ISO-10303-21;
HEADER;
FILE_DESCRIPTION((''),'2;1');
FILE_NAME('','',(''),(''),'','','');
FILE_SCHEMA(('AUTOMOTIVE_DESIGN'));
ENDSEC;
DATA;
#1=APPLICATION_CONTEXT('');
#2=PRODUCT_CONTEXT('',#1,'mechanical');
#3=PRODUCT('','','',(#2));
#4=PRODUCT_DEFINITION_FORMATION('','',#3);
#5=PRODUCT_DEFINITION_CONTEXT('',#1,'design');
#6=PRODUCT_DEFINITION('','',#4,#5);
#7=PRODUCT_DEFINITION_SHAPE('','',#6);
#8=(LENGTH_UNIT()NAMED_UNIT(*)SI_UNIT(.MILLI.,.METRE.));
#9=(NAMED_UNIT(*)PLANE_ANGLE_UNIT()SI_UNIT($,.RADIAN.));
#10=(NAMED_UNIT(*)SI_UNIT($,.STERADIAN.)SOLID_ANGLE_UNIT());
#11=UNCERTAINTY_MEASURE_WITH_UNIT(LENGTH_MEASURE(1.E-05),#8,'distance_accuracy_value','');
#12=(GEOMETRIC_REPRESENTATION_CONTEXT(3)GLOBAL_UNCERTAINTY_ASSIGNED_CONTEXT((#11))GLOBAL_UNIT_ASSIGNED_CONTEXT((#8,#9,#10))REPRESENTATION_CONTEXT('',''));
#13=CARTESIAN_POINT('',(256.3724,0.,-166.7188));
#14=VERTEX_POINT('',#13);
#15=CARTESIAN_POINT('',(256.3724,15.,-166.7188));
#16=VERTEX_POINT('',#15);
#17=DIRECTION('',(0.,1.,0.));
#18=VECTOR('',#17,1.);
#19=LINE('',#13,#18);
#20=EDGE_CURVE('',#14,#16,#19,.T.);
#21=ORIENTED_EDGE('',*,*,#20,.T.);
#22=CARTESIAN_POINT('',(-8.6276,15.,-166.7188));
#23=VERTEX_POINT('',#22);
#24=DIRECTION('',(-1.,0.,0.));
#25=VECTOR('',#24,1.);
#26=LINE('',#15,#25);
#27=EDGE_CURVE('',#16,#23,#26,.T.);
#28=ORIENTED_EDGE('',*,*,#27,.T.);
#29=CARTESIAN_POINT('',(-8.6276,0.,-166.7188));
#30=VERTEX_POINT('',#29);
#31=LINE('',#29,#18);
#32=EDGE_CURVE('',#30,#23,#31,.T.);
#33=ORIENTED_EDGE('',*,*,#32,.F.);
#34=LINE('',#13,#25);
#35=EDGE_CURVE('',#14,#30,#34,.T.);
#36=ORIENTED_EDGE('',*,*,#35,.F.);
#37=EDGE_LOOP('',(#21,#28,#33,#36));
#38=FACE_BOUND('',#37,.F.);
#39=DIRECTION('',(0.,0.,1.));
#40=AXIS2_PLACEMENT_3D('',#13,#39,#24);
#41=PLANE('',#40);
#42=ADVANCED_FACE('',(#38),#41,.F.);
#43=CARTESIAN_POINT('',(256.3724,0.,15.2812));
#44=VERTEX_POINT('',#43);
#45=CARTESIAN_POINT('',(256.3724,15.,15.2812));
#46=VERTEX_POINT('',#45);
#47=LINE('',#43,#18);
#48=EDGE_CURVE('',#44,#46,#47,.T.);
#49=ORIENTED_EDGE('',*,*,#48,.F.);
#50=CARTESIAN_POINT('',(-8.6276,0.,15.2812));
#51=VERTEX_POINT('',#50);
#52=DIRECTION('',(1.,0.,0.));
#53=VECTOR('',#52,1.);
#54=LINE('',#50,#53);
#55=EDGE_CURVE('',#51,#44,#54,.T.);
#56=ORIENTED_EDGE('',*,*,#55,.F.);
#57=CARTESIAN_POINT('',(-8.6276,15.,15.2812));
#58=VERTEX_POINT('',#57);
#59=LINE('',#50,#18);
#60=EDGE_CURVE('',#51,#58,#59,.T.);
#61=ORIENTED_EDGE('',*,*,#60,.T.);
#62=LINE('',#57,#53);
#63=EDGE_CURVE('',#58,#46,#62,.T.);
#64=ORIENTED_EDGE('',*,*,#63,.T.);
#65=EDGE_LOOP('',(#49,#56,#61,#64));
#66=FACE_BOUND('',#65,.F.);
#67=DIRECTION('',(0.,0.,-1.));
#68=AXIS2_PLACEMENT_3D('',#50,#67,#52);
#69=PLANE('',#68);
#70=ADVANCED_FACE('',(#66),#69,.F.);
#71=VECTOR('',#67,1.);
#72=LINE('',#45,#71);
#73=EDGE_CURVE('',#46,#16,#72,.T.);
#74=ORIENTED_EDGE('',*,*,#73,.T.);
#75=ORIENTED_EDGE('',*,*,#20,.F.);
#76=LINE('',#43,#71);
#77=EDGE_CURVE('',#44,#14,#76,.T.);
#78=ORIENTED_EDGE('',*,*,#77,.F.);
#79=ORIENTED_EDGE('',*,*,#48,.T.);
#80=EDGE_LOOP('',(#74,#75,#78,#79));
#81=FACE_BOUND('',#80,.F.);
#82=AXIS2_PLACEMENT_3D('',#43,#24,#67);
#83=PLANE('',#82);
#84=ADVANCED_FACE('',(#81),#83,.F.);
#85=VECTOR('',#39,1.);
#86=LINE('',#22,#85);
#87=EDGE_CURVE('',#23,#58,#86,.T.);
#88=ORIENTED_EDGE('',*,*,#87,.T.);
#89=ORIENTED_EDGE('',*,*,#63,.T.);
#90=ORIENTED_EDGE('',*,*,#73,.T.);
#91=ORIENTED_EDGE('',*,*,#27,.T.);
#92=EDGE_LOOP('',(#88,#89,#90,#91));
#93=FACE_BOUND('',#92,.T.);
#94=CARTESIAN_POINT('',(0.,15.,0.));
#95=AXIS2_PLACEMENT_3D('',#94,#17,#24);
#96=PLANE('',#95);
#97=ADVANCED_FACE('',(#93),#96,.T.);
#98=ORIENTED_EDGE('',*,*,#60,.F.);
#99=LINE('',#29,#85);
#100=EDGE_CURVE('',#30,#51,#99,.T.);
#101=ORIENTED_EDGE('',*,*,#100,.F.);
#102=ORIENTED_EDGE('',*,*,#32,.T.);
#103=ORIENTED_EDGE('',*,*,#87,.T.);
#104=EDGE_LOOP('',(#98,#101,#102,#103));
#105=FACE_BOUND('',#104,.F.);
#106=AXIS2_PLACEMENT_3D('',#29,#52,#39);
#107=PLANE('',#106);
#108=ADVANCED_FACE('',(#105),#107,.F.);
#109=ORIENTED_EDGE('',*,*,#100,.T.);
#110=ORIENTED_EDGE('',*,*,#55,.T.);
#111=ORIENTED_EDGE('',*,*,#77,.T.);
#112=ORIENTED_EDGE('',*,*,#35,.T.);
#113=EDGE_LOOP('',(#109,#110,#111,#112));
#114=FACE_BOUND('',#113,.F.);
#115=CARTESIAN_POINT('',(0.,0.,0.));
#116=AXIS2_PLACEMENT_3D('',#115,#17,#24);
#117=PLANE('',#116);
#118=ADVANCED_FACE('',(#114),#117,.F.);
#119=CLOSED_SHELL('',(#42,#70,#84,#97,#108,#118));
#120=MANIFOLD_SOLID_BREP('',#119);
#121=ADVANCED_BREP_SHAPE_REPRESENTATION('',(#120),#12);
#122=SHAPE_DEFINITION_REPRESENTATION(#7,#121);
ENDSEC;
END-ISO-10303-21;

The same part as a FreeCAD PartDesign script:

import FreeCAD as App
import Part
import Sketcher
from FreeCAD import Vector
Q = App.Units.Quantity

doc = App.newDocument("Part")
body = doc.addObject("PartDesign::Body", "Body")

# Sketch on XZ plane
sketch1 = doc.addObject("Sketcher::SketchObject", "Sketch")
body.addObject(sketch1)
sketch1.AttachmentSupport = (doc.XZ_Plane, [""])
sketch1.MapMode = "FlatFace"
sketch1.addGeometry(Part.LineSegment(Vector(-8.6276, -166.7188, 0), Vector(-8.6276, 15.2812, 0)), False)
sketch1.addGeometry(Part.LineSegment(Vector(-8.6276, 15.2812, 0), Vector(256.3724, 15.2812, 0)), False)
sketch1.addGeometry(Part.LineSegment(Vector(256.3724, 15.2812, 0), Vector(256.3724, -166.7188, 0)), False)
sketch1.addGeometry(Part.LineSegment(Vector(256.3724, -166.7188, 0), Vector(-8.6276, -166.7188, 0)), False)
sketch1.addConstraint(Sketcher.Constraint("Coincident", 0, 2, 1, 1))
sketch1.addConstraint(Sketcher.Constraint("Coincident", 1, 2, 2, 1))
sketch1.addConstraint(Sketcher.Constraint("Coincident", 2, 2, 3, 1))
sketch1.addConstraint(Sketcher.Constraint("Coincident", 3, 2, 0, 1))
sketch1.addConstraint(Sketcher.Constraint("Vertical", 0))
sketch1.addConstraint(Sketcher.Constraint("Horizontal", 1))
sketch1.addConstraint(Sketcher.Constraint("Vertical", 2))
sketch1.addConstraint(Sketcher.Constraint("Horizontal", 3))
sketch1.addConstraint(Sketcher.Constraint("DistanceX", 1, 1, 1, 2, Q("265 mm")))
sketch1.addConstraint(Sketcher.Constraint("DistanceY", 0, 1, 0, 2, Q("182 mm")))
sketch1.addConstraint(Sketcher.Constraint("DistanceX", 0, 2, -1, 1, Q("8.6276 mm")))
sketch1.addConstraint(Sketcher.Constraint("DistanceY", -1, 1, 0, 2, Q("15.2812 mm")))
pad1 = doc.addObject("PartDesign::Pad", "Pad")
body.addObject(pad1)
pad1.Profile = sketch1
pad1.Length = 15
pad1.Reversed = True

doc.recompute()
